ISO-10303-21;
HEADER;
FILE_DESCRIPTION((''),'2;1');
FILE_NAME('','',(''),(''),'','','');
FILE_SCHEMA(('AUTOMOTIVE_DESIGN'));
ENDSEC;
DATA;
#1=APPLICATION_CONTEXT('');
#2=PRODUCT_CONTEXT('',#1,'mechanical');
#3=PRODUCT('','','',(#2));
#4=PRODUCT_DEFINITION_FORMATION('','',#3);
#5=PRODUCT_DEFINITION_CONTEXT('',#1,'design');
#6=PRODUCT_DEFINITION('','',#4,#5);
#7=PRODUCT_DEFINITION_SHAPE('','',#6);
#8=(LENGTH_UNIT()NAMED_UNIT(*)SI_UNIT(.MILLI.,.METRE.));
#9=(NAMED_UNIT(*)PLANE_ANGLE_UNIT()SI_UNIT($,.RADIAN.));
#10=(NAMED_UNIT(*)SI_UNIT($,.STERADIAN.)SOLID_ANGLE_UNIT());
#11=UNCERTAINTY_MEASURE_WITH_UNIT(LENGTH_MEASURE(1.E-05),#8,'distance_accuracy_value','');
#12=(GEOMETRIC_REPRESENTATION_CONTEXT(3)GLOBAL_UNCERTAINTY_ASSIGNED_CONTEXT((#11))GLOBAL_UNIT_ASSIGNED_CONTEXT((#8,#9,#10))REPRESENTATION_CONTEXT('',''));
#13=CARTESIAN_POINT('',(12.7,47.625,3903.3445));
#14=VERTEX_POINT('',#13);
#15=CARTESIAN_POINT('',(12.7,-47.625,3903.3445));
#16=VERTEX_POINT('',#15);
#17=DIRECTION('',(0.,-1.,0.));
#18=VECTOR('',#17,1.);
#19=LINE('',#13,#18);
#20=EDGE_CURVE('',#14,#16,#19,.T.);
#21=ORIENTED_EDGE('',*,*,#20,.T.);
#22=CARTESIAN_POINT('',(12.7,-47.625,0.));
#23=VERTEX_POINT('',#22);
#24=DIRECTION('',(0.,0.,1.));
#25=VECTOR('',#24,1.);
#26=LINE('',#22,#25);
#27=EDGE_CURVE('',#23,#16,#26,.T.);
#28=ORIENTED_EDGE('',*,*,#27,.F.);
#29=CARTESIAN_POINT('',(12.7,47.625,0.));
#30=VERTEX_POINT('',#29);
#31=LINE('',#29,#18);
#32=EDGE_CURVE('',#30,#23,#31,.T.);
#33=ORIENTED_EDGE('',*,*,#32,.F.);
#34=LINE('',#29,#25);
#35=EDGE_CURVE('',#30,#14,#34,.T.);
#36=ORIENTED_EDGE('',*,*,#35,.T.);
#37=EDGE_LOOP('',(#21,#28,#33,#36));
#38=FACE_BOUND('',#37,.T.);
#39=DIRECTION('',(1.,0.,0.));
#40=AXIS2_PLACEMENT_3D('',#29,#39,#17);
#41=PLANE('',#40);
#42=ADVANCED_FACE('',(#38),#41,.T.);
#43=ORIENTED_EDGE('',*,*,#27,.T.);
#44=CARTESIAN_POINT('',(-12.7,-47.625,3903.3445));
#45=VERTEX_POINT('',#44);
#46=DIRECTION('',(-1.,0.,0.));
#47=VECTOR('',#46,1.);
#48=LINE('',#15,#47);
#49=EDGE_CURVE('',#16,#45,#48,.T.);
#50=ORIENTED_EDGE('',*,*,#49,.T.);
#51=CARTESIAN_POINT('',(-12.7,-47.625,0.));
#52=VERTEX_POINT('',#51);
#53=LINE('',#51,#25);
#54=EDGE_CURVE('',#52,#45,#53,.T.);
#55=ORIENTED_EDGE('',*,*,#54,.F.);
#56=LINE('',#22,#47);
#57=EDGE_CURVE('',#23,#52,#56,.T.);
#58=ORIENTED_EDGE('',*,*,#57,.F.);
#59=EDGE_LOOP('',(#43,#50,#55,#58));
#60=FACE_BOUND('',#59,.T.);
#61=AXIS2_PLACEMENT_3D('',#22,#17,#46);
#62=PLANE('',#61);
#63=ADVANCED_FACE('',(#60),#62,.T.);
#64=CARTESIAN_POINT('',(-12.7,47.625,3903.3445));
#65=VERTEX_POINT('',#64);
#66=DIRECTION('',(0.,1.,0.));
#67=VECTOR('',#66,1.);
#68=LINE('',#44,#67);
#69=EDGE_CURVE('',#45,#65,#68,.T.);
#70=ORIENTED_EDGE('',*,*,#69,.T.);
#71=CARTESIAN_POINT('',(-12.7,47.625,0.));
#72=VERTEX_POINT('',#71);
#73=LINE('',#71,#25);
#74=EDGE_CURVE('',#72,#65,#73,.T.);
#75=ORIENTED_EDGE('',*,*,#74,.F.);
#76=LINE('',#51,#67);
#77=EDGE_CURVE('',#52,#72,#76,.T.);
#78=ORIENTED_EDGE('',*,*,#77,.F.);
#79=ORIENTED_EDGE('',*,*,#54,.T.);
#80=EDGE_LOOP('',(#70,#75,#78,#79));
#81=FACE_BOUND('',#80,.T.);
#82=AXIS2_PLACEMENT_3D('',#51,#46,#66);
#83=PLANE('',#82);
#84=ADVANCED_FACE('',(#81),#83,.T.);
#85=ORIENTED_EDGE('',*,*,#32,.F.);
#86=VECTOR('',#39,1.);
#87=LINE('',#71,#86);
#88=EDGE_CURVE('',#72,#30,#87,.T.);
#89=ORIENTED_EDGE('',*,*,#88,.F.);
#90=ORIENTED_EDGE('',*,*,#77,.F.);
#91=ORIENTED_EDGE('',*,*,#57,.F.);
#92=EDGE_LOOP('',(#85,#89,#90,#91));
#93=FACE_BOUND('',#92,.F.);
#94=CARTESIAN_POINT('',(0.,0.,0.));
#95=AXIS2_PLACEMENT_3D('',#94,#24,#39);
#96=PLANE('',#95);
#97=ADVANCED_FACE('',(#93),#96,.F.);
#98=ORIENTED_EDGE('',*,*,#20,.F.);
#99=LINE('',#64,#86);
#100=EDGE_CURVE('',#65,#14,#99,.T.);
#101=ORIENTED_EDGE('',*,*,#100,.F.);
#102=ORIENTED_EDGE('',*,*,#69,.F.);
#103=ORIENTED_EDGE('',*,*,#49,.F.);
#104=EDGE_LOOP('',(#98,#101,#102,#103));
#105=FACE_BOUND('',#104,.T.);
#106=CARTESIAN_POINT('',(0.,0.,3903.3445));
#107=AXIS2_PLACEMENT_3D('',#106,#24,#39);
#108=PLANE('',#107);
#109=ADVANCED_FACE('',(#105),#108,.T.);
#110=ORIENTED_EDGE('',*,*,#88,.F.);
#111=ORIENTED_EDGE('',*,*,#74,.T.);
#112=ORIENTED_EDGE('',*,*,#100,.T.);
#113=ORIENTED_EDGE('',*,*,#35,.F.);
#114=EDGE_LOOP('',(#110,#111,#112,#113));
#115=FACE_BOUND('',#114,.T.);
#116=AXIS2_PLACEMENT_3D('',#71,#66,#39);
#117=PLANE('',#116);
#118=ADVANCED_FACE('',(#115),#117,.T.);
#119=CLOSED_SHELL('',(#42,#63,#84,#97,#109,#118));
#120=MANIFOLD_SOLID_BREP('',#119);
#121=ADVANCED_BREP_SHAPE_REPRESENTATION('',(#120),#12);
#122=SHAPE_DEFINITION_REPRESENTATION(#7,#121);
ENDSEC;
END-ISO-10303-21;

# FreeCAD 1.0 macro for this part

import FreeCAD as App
import Part
import Sketcher
from FreeCAD import Vector
Q = App.Units.Quantity

doc = App.newDocument("Part")
body = doc.addObject("PartDesign::Body", "Body")

# Sketch on XY plane
sketch1 = body.newObject("Sketcher::SketchObject", "Sketch")
sketch1.AttachmentSupport = (doc.getObject("XY_Plane"), [""])
sketch1.MapMode = "FlatFace"
sketch1.addGeometry([
    Part.LineSegment(Vector(-12.7, -47.625, 0), Vector(12.7, -47.625, 0)),
    Part.LineSegment(Vector(12.7, -47.625, 0), Vector(12.7, 47.625, 0)),
    Part.LineSegment(Vector(12.7, 47.625, 0), Vector(-12.7, 47.625, 0)),
    Part.LineSegment(Vector(-12.7, 47.625, 0), Vector(-12.7, -47.625, 0)),
], False)
sketch1.addConstraint([
    Sketcher.Constraint("Coincident", 0, 2, 1, 1),
    Sketcher.Constraint("Coincident", 1, 2, 2, 1),
    Sketcher.Constraint("Coincident", 2, 2, 3, 1),
    Sketcher.Constraint("Coincident", 3, 2, 0, 1),
    Sketcher.Constraint("Horizontal", 0),
    Sketcher.Constraint("Vertical", 1),
    Sketcher.Constraint("Horizontal", 2),
    Sketcher.Constraint("Vertical", 3),
    Sketcher.Constraint("Symmetric", 0, 2, 2, 2, -1, 1),
    Sketcher.Constraint("DistanceX", 0, 1, 0, 2, Q("1 in")),
    Sketcher.Constraint("DistanceY", 1, 1, 1, 2, Q("3.75 in")),
])
pad1 = body.newObject("PartDesign::Pad", "Pad")
pad1.Profile = sketch1
pad1.Length = 3903.3445

doc.recompute()
